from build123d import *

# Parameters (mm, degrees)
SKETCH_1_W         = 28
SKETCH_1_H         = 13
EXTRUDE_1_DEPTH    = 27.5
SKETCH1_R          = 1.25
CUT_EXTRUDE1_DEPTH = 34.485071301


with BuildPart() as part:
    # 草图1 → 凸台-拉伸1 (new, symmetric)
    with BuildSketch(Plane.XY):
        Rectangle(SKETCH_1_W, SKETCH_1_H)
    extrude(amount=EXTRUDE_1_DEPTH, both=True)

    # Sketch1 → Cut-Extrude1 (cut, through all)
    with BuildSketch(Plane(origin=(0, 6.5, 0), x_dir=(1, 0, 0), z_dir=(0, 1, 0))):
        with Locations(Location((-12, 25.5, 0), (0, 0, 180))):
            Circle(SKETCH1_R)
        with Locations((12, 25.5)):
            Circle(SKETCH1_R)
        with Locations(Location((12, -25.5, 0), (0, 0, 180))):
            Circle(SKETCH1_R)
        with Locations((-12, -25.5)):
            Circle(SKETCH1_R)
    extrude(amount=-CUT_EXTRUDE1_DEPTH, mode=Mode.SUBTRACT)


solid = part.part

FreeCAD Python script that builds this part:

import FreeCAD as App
import Part
import Sketcher
from FreeCAD import Vector
Q = App.Units.Quantity

doc = App.newDocument("Part")
params = doc.addObject("Spreadsheet::Sheet", "Params")
for row, (alias, value) in enumerate([
    ("sketch1_width", "28 mm"),
    ("sketch1_height", "13 mm"),
    ("pad1_length", "55 mm"),
    ("sketch2_diameter", "2.5 mm"),
], start=1):
    params.set(f"A{row}", alias)
    params.set(f"B{row}", "=" + value)
    params.setAlias(f"B{row}", alias)

body = doc.addObject("PartDesign::Body", "Body")

# Sketch on XY plane
sketch1 = body.newObject("Sketcher::SketchObject", "Sketch")
sketch1.AttachmentSupport = (doc.getObject("XY_Plane"), [""])
sketch1.MapMode = "FlatFace"
sketch1.addGeometry(Part.LineSegment(Vector(-14, 6.5, 0), Vector(-14, -6.5, 0)), False)
sketch1.addGeometry(Part.LineSegment(Vector(-14, -6.5, 0), Vector(14, -6.5, 0)), False)
sketch1.addGeometry(Part.LineSegment(Vector(14, -6.5, 0), Vector(14, 6.5, 0)), False)
sketch1.addGeometry(Part.LineSegment(Vector(14, 6.5, 0), Vector(-14, 6.5, 0)), False)
sketch1.addConstraint(Sketcher.Constraint("Coincident", 0, 2, 1, 1))
sketch1.addConstraint(Sketcher.Constraint("Coincident", 1, 2, 2, 1))
sketch1.addConstraint(Sketcher.Constraint("Coincident", 2, 2, 3, 1))
sketch1.addConstraint(Sketcher.Constraint("Coincident", 3, 2, 0, 1))
sketch1.addConstraint(Sketcher.Constraint("Vertical", 0))
sketch1.addConstraint(Sketcher.Constraint("Horizontal", 1))
sketch1.addConstraint(Sketcher.Constraint("Vertical", 2))
sketch1.addConstraint(Sketcher.Constraint("Horizontal", 3))
sketch1.addConstraint(Sketcher.Constraint("Symmetric", 0, 2, 2, 2, -1, 1))
sketch1.addConstraint(Sketcher.Constraint("DistanceX", 1, 1, 1, 2, Q("28 mm")))
sketch1.addConstraint(Sketcher.Constraint("DistanceY", 0, 2, 0, 1, Q("13 mm")))
sketch1.setExpression("Constraints[9]", "Params.sketch1_width")
sketch1.setExpression("Constraints[10]", "Params.sketch1_height")
pad1 = body.newObject("PartDesign::Pad", "Pad")
pad1.Profile = sketch1
pad1.setExpression("Length", "Params.pad1_length")
pad1.Midplane = True

# Sketch on XZ plane
sketch2 = body.newObject("Sketcher::SketchObject", "Sketch001")
sketch2.AttachmentSupport = (doc.getObject("XZ_Plane"), [""])
sketch2.MapMode = "FlatFace"
sketch2.AttachmentOffset = App.Placement(Vector(0, 0, -6.5), App.Rotation())
sketch2.addGeometry(Part.Circle(Vector(-12, -25.5, 0), Vector(0, 0, 1), 1.25), False)
sketch2.addGeometry(Part.Circle(Vector(12, -25.5, 0), Vector(0, 0, 1), 1.25), False)
sketch2.addGeometry(Part.Circle(Vector(12, 25.5, 0), Vector(0, 0, 1), 1.25), False)
sketch2.addGeometry(Part.Circle(Vector(-12, 25.5, 0), Vector(0, 0, 1), 1.25), False)
sketch2.addConstraint(Sketcher.Constraint("Equal", 0, 1))
sketch2.addConstraint(Sketcher.Constraint("Equal", 1, 2))
sketch2.addConstraint(Sketcher.Constraint("Equal", 2, 3))
sketch2.addConstraint(Sketcher.Constraint("Symmetric", 0, 3, 2, 3, -1, 1))
sketch2.addConstraint(Sketcher.Constraint("Symmetric", 1, 3, 3, 3, -1, 1))
sketch2.addConstraint(Sketcher.Constraint("Symmetric", 0, 3, 1, 3, -2))
sketch2.addConstraint(Sketcher.Constraint("Diameter", 0, Q("2.5 mm")))
sketch2.addConstraint(Sketcher.Constraint("DistanceX", 0, 3, -1, 1, Q("12 mm")))
sketch2.addConstraint(Sketcher.Constraint("DistanceY", 1, 3, 2, 3, Q("51 mm")))
sketch2.setExpression("Constraints[6]", "Params.sketch2_diameter")
pocket1 = body.newObject("PartDesign::Pocket", "Pocket")
pocket1.Profile = sketch2
pocket1.Type = "ThroughAll"
pocket1.Reversed = True

doc.recompute()
